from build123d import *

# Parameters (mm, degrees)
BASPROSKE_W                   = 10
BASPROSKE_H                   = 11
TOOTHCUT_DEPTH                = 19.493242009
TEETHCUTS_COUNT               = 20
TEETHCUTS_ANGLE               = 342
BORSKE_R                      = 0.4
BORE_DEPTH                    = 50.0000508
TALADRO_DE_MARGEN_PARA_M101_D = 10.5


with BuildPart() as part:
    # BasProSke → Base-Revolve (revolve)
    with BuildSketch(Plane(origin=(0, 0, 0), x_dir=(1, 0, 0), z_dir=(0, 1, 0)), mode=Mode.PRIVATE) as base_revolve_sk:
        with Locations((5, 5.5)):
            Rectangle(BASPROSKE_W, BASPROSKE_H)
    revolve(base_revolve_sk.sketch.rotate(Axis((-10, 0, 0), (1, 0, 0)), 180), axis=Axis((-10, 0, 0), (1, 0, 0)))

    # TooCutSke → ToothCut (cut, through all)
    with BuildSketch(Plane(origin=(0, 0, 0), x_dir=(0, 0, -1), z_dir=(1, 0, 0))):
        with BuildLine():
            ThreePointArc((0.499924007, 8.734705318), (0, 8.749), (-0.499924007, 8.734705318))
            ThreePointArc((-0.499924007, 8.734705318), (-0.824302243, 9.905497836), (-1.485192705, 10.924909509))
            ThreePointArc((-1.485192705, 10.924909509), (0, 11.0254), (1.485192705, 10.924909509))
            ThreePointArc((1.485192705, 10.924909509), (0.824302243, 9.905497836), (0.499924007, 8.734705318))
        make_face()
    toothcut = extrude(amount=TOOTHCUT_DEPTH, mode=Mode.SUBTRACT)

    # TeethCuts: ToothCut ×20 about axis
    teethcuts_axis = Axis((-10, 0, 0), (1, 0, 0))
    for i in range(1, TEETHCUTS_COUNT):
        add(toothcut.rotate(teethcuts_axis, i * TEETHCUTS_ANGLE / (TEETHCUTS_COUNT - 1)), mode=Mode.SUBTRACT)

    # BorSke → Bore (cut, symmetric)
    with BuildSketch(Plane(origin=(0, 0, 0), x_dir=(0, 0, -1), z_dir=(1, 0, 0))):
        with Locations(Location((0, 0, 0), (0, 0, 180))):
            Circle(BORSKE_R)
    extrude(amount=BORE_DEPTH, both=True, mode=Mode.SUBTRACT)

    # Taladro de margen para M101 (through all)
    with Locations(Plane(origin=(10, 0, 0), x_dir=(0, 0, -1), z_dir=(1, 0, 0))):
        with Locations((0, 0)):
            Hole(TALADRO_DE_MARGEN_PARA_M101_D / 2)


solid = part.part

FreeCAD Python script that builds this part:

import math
import FreeCAD as App
import Part
import Sketcher

V = App.Vector
Q = App.Units.Quantity

doc = App.newDocument("Part")
params = doc.addObject("Spreadsheet::Sheet", "Params")
for row, (alias, value) in enumerate([
    ("sketch1_width", "10 mm"),
    ("sketch1_height", "11 mm"),
    ("revolution_angle", "360 deg"),
    ("sketch2_radius", "4 mm"),
    ("sketch3_diameter", "0.8 mm"),
    ("pocket2_length", "100.000102 mm"),
    ("sketch4_diameter", "10.5 mm"),
    ("hole_diameter", "10.5 mm"),
], start=1):
    params.set(f"A{row}", alias)
    params.set(f"B{row}", "=" + value)
    params.setAlias(f"B{row}", alias)

body = doc.addObject("PartDesign::Body", "Body")

# Sketch on XZ plane
sketch1 = body.newObject("Sketcher::SketchObject", "Sketch")
sketch1.AttachmentSupport = (doc.getObject("XZ_Plane"), [""])
sketch1.MapMode = "FlatFace"
sketch1.addGeometry(Part.LineSegment(V(0, -11, 0), V(0, 0, 0)), False)
sketch1.addGeometry(Part.LineSegment(V(0, 0, 0), V(10, 0, 0)), False)
sketch1.addGeometry(Part.LineSegment(V(10, 0, 0), V(10, -11, 0)), False)
sketch1.addGeometry(Part.LineSegment(V(10, -11, 0), V(0, -11, 0)), False)
sketch1.addConstraint(Sketcher.Constraint("Coincident", 0, 2, 1, 1))
sketch1.addConstraint(Sketcher.Constraint("Coincident", 1, 2, 2, 1))
sketch1.addConstraint(Sketcher.Constraint("Coincident", 2, 2, 3, 1))
sketch1.addConstraint(Sketcher.Constraint("Coincident", 3, 2, 0, 1))
sketch1.addConstraint(Sketcher.Constraint("Vertical", 0))
sketch1.addConstraint(Sketcher.Constraint("Horizontal", 1))
sketch1.addConstraint(Sketcher.Constraint("Vertical", 2))
sketch1.addConstraint(Sketcher.Constraint("Horizontal", 3))
sketch1.addConstraint(Sketcher.Constraint("Coincident", 0, 2, -1, 1))
sketch1.addConstraint(Sketcher.Constraint("DistanceX", 1, 1, 1, 2, Q("10 mm")))
sketch1.addConstraint(Sketcher.Constraint("DistanceY", 0, 1, 0, 2, Q("11 mm")))
sketch1.setExpression("Constraints[9]", "Params.sketch1_width")
sketch1.setExpression("Constraints[10]", "Params.sketch1_height")
revolution = body.newObject("PartDesign::Revolution", "Revolution")
revolution.Profile = sketch1
revolution.ReferenceAxis = (sketch1, ["H_Axis"])
revolution.setExpression("Angle", "Params.revolution_angle")

# Sketch on YZ plane
sketch2 = body.newObject("Sketcher::SketchObject", "Sketch001")
sketch2.AttachmentSupport = (doc.getObject("YZ_Plane"), [""])
sketch2.MapMode = "FlatFace"
sketch2.addGeometry(Part.ArcOfCircle(Part.Circle(V(0, 0, 0), V(0, 0, 1), 8.7), math.radians(-3.28), math.radians(3.28)), False)
sketch2.addGeometry(Part.ArcOfCircle(Part.Circle(V(8.3, -4.5, 0), V(0, 0, 1), 4), math.radians(48), math.radians(83)), False)
sketch2.addGeometry(Part.ArcOfCircle(Part.Circle(V(0, 0, 0), V(0, 0, 1), 11), math.radians(-7.74), math.radians(7.74)), False)
sketch2.addGeometry(Part.ArcOfCircle(Part.Circle(V(8.3, 4.5, 0), V(0, 0, 1), 4), math.radians(-83), math.radians(-48)), False)
sketch2.addConstraint(Sketcher.Constraint("Coincident", 0, 1, 1, 2))
sketch2.addConstraint(Sketcher.Constraint("Coincident", 1, 1, 2, 1))
sketch2.addConstraint(Sketcher.Constraint("Coincident", 2, 2, 3, 2))
sketch2.addConstraint(Sketcher.Constraint("Coincident", 3, 1, 0, 2))
sketch2.addConstraint(Sketcher.Constraint("Coincident", 0, 3, -1, 1))
sketch2.addConstraint(Sketcher.Constraint("Coincident", 2, 3, -1, 1))
sketch2.addConstraint(Sketcher.Constraint("Equal", 1, 3))
sketch2.addConstraint(Sketcher.Constraint("Symmetric", 1, 3, 3, 3, -1))
sketch2.addConstraint(Sketcher.Constraint("Radius", 1, Q("4 mm")))
sketch2.addConstraint(Sketcher.Constraint("Radius", 0, Q("8.749 mm")))
sketch2.addConstraint(Sketcher.Constraint("Radius", 2, Q("11.0254 mm")))
sketch2.addConstraint(Sketcher.Constraint("DistanceY", 1, 3, -1, 1, Q("4.47219 mm")))
sketch2.addConstraint(Sketcher.Constraint("DistanceX", -1, 1, 1, 1, Q("10.92491 mm")))
sketch2.setExpression("Constraints[8]", "Params.sketch2_radius")
pocket1 = body.newObject("PartDesign::Pocket", "Pocket")
pocket1.Profile = sketch2
pocket1.Type = "ThroughAll"
pocket1.Reversed = True
doc.recompute()

polarpattern = body.newObject("PartDesign::PolarPattern", "PolarPattern")
polarpattern.Originals = [pocket1]
polarpattern.Axis = (doc.getObject("X_Axis"), [""])
polarpattern.Angle = 360
polarpattern.Occurrences = 20
body.Tip = polarpattern

# Sketch on YZ plane
sketch3 = body.newObject("Sketcher::SketchObject", "Sketch002")
sketch3.AttachmentSupport = (doc.getObject("YZ_Plane"), [""])
sketch3.MapMode = "FlatFace"
sketch3.addGeometry(Part.Circle(V(0, 0, 0), V(0, 0, 1), 0.4), False)
sketch3.addConstraint(Sketcher.Constraint("Coincident", 0, 3, -1, 1))
sketch3.addConstraint(Sketcher.Constraint("Diameter", 0, Q("0.8 mm")))
sketch3.setExpression("Constraints[1]", "Params.sketch3_diameter")
pocket2 = body.newObject("PartDesign::Pocket", "Pocket001")
pocket2.Profile = sketch3
pocket2.setExpression("Length", "Params.pocket2_length")
pocket2.Midplane = True

# Sketch on YZ plane
sketch4 = body.newObject("Sketcher::SketchObject", "Sketch003")
sketch4.AttachmentSupport = (doc.getObject("YZ_Plane"), [""])
sketch4.MapMode = "FlatFace"
sketch4.AttachmentOffset = App.Placement(V(0, 0, 10), App.Rotation())
sketch4.addGeometry(Part.Circle(V(0, 0, 0), V(0, 0, 1), 5), False)
sketch4.addConstraint(Sketcher.Constraint("Coincident", 0, 3, -1, 1))
sketch4.addConstraint(Sketcher.Constraint("Diameter", 0, Q("10.5 mm")))
sketch4.setExpression("Constraints[1]", "Params.sketch4_diameter")
doc.recompute()
hole = body.newObject("PartDesign::Hole", "Hole")
hole.Profile = sketch4
hole.ThreadType = "None"
hole.setExpression("Diameter", "Params.hole_diameter")
hole.DepthType = "ThroughAll"

doc.recompute()
